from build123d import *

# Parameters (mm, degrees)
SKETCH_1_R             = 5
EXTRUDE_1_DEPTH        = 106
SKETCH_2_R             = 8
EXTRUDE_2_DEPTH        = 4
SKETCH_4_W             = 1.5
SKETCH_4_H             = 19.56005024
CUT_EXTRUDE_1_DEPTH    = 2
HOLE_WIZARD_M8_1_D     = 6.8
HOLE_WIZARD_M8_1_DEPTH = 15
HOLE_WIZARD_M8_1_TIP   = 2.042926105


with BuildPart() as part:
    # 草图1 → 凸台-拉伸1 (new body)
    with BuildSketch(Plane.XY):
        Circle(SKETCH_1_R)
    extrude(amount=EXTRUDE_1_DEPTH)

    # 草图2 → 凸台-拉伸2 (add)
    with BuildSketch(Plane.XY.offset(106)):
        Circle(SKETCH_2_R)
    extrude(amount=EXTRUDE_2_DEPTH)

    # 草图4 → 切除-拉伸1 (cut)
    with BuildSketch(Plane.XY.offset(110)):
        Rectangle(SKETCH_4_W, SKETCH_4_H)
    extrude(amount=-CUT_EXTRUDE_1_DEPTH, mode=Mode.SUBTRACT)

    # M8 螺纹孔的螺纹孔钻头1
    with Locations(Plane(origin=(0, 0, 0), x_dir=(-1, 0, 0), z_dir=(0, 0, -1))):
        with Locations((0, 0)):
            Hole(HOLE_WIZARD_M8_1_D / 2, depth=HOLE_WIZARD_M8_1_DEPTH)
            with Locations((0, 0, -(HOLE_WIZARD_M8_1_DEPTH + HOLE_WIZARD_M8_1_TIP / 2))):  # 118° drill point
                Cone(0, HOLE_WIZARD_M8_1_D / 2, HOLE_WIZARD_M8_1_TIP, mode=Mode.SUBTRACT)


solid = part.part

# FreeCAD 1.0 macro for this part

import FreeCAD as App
import Part
import Sketcher
Q = App.Units.Quantity


def add_polygon(sketch, points):
    """Adds a closed chain of lines whose ends are joined by coincident constraints."""
    first, n = sketch.GeometryCount, len(points)
    for a, b in zip(points, points[1:] + points[:1]):
        sketch.addGeometry(Part.LineSegment(App.Vector(*a, 0), App.Vector(*b, 0)), False)
    for i in range(n):
        sketch.addConstraint(Sketcher.Constraint("Coincident", first + i, 2, first + (i + 1) % n, 1))

doc = App.newDocument("Part")
params = doc.addObject("Spreadsheet::Sheet", "Params")
for row, (alias, value) in enumerate([
    ("sketch1_diameter", "10 mm"),
    ("pad1_length", "106 mm"),
    ("sketch2_diameter", "16 mm"),
    ("pad2_length", "4 mm"),
    ("sketch3_width", "1.5 mm"),
    ("pocket1_length", "2 mm"),
    ("sketch4_diameter", "6.8 mm"),
    ("hole_diameter", "6.8 mm"),
    ("hole_depth", "15 mm"),
], start=1):
    params.set(f"A{row}", alias)
    params.set(f"B{row}", "=" + value)
    params.setAlias(f"B{row}", alias)

body = doc.addObject("PartDesign::Body", "Body")

# Sketch on XY plane
sketch1 = body.newObject("Sketcher::SketchObject", "Sketch")
sketch1.AttachmentSupport = (doc.getObject("XY_Plane"), [""])
sketch1.MapMode = "FlatFace"
sketch1.addGeometry(Part.Circle(App.Vector(0, 0, 0), App.Vector(0, 0, 1), 5), False)
sketch1.addConstraint([
    Sketcher.Constraint("Coincident", 0, 3, -1, 1),
    Sketcher.Constraint("Diameter", 0, Q("10 mm")),
])
sketch1.setExpression("Constraints[1]", "Params.sketch1_diameter")
pad1 = body.newObject("PartDesign::Pad", "Pad")
pad1.Profile = sketch1
pad1.setExpression("Length", "Params.pad1_length")

# Sketch on XY plane
sketch2 = body.newObject("Sketcher::SketchObject", "Sketch001")
sketch2.AttachmentSupport = (doc.getObject("XY_Plane"), [""])
sketch2.MapMode = "FlatFace"
sketch2.AttachmentOffset = App.Placement(App.Vector(0, 0, 106), App.Rotation())
sketch2.addGeometry(Part.Circle(App.Vector(0, 0, 0), App.Vector(0, 0, 1), 8), False)
sketch2.addConstraint([
    Sketcher.Constraint("Coincident", 0, 3, -1, 1),
    Sketcher.Constraint("Diameter", 0, Q("16 mm")),
])
sketch2.setExpression("Constraints[1]", "Params.sketch2_diameter")
pad2 = body.newObject("PartDesign::Pad", "Pad001")
pad2.Profile = sketch2
pad2.setExpression("Length", "Params.pad2_length")

# Sketch on XY plane
sketch3 = body.newObject("Sketcher::SketchObject", "Sketch002")
sketch3.AttachmentSupport = (doc.getObject("XY_Plane"), [""])
sketch3.MapMode = "FlatFace"
sketch3.AttachmentOffset = App.Placement(App.Vector(0, 0, 110), App.Rotation())
add_polygon(sketch3, [(-0.8, 9.8), (-0.8, -9.8), (0.8, -9.8), (0.8, 9.8)])  # lines 0-3
sketch3.addConstraint([
    Sketcher.Constraint("Vertical", 0),
    Sketcher.Constraint("Horizontal", 1),
    Sketcher.Constraint("Vertical", 2),
    Sketcher.Constraint("Horizontal", 3),
    Sketcher.Constraint("Symmetric", 0, 2, 2, 2, -1, 1),
    Sketcher.Constraint("DistanceX", 1, 1, 1, 2, Q("1.5 mm")),
    Sketcher.Constraint("DistanceY", 0, 2, 0, 1, Q("19.56005 mm")),
])
sketch3.setExpression("Constraints[9]", "Params.sketch3_width")
pocket1 = body.newObject("PartDesign::Pocket", "Pocket")
pocket1.Profile = sketch3
pocket1.setExpression("Length", "Params.pocket1_length")

# Sketch on XY plane
sketch4 = body.newObject("Sketcher::SketchObject", "Sketch003")
sketch4.AttachmentSupport = (doc.getObject("XY_Plane"), [""])
sketch4.MapMode = "FlatFace"
sketch4.addGeometry(Part.Circle(App.Vector(0, 0, 0), App.Vector(0, 0, 1), 3.4), False)
sketch4.addConstraint([
    Sketcher.Constraint("Coincident", 0, 3, -1, 1),
    Sketcher.Constraint("Diameter", 0, Q("6.8 mm")),
])
sketch4.setExpression("Constraints[1]", "Params.sketch4_diameter")
doc.recompute()
hole = body.newObject("PartDesign::Hole", "Hole")
hole.Profile = sketch4
hole.ThreadType = "None"
hole.setExpression("Diameter", "Params.hole_diameter")
hole.DepthType = "Dimension"
hole.setExpression("Depth", "Params.hole_depth")
hole.DrillPoint = "Angled"
hole.DrillPointAngle = 118
hole.Reversed = True

doc.recompute()
